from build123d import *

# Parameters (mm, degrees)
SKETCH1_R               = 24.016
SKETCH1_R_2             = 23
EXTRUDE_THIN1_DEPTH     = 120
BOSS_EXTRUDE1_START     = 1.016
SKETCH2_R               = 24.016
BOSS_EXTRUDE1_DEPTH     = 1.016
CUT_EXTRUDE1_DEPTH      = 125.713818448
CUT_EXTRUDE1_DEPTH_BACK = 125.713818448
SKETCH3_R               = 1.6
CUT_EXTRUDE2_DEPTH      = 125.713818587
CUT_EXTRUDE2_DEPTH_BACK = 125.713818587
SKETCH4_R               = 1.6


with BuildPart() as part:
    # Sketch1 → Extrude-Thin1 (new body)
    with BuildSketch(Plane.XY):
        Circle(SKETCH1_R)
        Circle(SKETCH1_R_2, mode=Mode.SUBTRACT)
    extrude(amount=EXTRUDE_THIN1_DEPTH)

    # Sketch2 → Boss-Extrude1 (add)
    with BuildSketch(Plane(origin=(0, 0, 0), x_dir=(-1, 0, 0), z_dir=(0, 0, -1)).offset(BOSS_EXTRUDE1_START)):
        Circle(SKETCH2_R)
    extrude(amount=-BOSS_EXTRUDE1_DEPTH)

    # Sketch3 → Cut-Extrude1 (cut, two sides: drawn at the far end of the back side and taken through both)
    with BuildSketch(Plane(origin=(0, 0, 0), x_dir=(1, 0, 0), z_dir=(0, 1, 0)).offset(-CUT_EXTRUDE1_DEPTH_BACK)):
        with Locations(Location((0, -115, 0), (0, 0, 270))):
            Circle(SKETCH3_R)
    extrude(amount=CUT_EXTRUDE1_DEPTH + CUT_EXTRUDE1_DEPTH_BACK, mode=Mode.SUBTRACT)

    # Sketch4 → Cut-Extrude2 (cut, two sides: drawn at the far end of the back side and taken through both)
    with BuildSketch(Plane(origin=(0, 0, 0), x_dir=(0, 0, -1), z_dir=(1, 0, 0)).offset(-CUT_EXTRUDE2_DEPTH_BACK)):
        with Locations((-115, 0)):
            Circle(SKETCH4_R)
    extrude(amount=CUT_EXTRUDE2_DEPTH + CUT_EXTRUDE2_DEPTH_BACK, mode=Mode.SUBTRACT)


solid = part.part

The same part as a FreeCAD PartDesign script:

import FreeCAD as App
import Part
import Sketcher

V = App.Vector
Q = App.Units.Quantity

doc = App.newDocument("Part")
body = doc.addObject("PartDesign::Body", "Body")

sketch1 = doc.addObject("Sketcher::SketchObject", "Sketch")
body.addObject(sketch1)
sketch1.AttachmentSupport = (doc.XY_Plane, [""])
sketch1.MapMode = "FlatFace"
sketch1.addGeometry([
    Part.Circle(V(0, 0, 0), V(0, 0, 1), 24),
    Part.Circle(V(0, 0, 0), V(0, 0, 1), 23),
], False)
sketch1.addConstraint([
    Sketcher.Constraint("Coincident", 0, 3, -1, 1),
    Sketcher.Constraint("Coincident", 1, 3, -1, 1),
    Sketcher.Constraint("Diameter", 1, Q("46 mm")),
    Sketcher.Constraint("Diameter", 0, Q("48.032 mm")),
])
pad1 = doc.addObject("PartDesign::Pad", "Pad")
body.addObject(pad1)
pad1.Profile = sketch1
pad1.Length = 120

sketch2 = doc.addObject("Sketcher::SketchObject", "Sketch001")
body.addObject(sketch2)
sketch2.AttachmentSupport = (doc.XY_Plane, [""])
sketch2.MapMode = "FlatFace"
sketch2.AttachmentOffset = App.Placement(V(0, 0, -1.016), App.Rotation())
sketch2.addGeometry(Part.Circle(V(0, 0, 0), V(0, 0, 1), 24), False)
sketch2.addConstraint([
    Sketcher.Constraint("Coincident", 0, 3, -1, 1),
    Sketcher.Constraint("Diameter", 0, Q("48.032 mm")),
])
pad2 = doc.addObject("PartDesign::Pad", "Pad001")
body.addObject(pad2)
pad2.Profile = sketch2
pad2.Length = 1.016

sketch3 = doc.addObject("Sketcher::SketchObject", "Sketch002")
body.addObject(sketch3)
sketch3.AttachmentSupport = (doc.XZ_Plane, [""])
sketch3.MapMode = "FlatFace"
sketch3.addGeometry(Part.Circle(V(0, 115, 0), V(0, 0, 1), 1.6), False)
sketch3.addConstraint([
    Sketcher.Constraint("PointOnObject", 0, 3, -2),
    Sketcher.Constraint("Diameter", 0, Q("3.2 mm")),
    Sketcher.Constraint("DistanceY", -1, 1, 0, 3, Q("115 mm")),
])
pocket1 = doc.addObject("PartDesign::Pocket", "Pocket")
body.addObject(pocket1)
pocket1.Profile = sketch3
pocket1.Type = "ThroughAll"
pocket1.Midplane = True

sketch4 = doc.addObject("Sketcher::SketchObject", "Sketch003")
body.addObject(sketch4)
sketch4.AttachmentSupport = (doc.YZ_Plane, [""])
sketch4.MapMode = "FlatFace"
sketch4.addGeometry(Part.Circle(V(0, 115, 0), V(0, 0, 1), 1.6), False)
sketch4.addConstraint([
    Sketcher.Constraint("PointOnObject", 0, 3, -2),
    Sketcher.Constraint("Diameter", 0, Q("3.2 mm")),
    Sketcher.Constraint("DistanceY", -1, 1, 0, 3, Q("115 mm")),
])
pocket2 = doc.addObject("PartDesign::Pocket", "Pocket001")
body.addObject(pocket2)
pocket2.Profile = sketch4
pocket2.Type = "ThroughAll"
pocket2.Midplane = True

doc.recompute()
